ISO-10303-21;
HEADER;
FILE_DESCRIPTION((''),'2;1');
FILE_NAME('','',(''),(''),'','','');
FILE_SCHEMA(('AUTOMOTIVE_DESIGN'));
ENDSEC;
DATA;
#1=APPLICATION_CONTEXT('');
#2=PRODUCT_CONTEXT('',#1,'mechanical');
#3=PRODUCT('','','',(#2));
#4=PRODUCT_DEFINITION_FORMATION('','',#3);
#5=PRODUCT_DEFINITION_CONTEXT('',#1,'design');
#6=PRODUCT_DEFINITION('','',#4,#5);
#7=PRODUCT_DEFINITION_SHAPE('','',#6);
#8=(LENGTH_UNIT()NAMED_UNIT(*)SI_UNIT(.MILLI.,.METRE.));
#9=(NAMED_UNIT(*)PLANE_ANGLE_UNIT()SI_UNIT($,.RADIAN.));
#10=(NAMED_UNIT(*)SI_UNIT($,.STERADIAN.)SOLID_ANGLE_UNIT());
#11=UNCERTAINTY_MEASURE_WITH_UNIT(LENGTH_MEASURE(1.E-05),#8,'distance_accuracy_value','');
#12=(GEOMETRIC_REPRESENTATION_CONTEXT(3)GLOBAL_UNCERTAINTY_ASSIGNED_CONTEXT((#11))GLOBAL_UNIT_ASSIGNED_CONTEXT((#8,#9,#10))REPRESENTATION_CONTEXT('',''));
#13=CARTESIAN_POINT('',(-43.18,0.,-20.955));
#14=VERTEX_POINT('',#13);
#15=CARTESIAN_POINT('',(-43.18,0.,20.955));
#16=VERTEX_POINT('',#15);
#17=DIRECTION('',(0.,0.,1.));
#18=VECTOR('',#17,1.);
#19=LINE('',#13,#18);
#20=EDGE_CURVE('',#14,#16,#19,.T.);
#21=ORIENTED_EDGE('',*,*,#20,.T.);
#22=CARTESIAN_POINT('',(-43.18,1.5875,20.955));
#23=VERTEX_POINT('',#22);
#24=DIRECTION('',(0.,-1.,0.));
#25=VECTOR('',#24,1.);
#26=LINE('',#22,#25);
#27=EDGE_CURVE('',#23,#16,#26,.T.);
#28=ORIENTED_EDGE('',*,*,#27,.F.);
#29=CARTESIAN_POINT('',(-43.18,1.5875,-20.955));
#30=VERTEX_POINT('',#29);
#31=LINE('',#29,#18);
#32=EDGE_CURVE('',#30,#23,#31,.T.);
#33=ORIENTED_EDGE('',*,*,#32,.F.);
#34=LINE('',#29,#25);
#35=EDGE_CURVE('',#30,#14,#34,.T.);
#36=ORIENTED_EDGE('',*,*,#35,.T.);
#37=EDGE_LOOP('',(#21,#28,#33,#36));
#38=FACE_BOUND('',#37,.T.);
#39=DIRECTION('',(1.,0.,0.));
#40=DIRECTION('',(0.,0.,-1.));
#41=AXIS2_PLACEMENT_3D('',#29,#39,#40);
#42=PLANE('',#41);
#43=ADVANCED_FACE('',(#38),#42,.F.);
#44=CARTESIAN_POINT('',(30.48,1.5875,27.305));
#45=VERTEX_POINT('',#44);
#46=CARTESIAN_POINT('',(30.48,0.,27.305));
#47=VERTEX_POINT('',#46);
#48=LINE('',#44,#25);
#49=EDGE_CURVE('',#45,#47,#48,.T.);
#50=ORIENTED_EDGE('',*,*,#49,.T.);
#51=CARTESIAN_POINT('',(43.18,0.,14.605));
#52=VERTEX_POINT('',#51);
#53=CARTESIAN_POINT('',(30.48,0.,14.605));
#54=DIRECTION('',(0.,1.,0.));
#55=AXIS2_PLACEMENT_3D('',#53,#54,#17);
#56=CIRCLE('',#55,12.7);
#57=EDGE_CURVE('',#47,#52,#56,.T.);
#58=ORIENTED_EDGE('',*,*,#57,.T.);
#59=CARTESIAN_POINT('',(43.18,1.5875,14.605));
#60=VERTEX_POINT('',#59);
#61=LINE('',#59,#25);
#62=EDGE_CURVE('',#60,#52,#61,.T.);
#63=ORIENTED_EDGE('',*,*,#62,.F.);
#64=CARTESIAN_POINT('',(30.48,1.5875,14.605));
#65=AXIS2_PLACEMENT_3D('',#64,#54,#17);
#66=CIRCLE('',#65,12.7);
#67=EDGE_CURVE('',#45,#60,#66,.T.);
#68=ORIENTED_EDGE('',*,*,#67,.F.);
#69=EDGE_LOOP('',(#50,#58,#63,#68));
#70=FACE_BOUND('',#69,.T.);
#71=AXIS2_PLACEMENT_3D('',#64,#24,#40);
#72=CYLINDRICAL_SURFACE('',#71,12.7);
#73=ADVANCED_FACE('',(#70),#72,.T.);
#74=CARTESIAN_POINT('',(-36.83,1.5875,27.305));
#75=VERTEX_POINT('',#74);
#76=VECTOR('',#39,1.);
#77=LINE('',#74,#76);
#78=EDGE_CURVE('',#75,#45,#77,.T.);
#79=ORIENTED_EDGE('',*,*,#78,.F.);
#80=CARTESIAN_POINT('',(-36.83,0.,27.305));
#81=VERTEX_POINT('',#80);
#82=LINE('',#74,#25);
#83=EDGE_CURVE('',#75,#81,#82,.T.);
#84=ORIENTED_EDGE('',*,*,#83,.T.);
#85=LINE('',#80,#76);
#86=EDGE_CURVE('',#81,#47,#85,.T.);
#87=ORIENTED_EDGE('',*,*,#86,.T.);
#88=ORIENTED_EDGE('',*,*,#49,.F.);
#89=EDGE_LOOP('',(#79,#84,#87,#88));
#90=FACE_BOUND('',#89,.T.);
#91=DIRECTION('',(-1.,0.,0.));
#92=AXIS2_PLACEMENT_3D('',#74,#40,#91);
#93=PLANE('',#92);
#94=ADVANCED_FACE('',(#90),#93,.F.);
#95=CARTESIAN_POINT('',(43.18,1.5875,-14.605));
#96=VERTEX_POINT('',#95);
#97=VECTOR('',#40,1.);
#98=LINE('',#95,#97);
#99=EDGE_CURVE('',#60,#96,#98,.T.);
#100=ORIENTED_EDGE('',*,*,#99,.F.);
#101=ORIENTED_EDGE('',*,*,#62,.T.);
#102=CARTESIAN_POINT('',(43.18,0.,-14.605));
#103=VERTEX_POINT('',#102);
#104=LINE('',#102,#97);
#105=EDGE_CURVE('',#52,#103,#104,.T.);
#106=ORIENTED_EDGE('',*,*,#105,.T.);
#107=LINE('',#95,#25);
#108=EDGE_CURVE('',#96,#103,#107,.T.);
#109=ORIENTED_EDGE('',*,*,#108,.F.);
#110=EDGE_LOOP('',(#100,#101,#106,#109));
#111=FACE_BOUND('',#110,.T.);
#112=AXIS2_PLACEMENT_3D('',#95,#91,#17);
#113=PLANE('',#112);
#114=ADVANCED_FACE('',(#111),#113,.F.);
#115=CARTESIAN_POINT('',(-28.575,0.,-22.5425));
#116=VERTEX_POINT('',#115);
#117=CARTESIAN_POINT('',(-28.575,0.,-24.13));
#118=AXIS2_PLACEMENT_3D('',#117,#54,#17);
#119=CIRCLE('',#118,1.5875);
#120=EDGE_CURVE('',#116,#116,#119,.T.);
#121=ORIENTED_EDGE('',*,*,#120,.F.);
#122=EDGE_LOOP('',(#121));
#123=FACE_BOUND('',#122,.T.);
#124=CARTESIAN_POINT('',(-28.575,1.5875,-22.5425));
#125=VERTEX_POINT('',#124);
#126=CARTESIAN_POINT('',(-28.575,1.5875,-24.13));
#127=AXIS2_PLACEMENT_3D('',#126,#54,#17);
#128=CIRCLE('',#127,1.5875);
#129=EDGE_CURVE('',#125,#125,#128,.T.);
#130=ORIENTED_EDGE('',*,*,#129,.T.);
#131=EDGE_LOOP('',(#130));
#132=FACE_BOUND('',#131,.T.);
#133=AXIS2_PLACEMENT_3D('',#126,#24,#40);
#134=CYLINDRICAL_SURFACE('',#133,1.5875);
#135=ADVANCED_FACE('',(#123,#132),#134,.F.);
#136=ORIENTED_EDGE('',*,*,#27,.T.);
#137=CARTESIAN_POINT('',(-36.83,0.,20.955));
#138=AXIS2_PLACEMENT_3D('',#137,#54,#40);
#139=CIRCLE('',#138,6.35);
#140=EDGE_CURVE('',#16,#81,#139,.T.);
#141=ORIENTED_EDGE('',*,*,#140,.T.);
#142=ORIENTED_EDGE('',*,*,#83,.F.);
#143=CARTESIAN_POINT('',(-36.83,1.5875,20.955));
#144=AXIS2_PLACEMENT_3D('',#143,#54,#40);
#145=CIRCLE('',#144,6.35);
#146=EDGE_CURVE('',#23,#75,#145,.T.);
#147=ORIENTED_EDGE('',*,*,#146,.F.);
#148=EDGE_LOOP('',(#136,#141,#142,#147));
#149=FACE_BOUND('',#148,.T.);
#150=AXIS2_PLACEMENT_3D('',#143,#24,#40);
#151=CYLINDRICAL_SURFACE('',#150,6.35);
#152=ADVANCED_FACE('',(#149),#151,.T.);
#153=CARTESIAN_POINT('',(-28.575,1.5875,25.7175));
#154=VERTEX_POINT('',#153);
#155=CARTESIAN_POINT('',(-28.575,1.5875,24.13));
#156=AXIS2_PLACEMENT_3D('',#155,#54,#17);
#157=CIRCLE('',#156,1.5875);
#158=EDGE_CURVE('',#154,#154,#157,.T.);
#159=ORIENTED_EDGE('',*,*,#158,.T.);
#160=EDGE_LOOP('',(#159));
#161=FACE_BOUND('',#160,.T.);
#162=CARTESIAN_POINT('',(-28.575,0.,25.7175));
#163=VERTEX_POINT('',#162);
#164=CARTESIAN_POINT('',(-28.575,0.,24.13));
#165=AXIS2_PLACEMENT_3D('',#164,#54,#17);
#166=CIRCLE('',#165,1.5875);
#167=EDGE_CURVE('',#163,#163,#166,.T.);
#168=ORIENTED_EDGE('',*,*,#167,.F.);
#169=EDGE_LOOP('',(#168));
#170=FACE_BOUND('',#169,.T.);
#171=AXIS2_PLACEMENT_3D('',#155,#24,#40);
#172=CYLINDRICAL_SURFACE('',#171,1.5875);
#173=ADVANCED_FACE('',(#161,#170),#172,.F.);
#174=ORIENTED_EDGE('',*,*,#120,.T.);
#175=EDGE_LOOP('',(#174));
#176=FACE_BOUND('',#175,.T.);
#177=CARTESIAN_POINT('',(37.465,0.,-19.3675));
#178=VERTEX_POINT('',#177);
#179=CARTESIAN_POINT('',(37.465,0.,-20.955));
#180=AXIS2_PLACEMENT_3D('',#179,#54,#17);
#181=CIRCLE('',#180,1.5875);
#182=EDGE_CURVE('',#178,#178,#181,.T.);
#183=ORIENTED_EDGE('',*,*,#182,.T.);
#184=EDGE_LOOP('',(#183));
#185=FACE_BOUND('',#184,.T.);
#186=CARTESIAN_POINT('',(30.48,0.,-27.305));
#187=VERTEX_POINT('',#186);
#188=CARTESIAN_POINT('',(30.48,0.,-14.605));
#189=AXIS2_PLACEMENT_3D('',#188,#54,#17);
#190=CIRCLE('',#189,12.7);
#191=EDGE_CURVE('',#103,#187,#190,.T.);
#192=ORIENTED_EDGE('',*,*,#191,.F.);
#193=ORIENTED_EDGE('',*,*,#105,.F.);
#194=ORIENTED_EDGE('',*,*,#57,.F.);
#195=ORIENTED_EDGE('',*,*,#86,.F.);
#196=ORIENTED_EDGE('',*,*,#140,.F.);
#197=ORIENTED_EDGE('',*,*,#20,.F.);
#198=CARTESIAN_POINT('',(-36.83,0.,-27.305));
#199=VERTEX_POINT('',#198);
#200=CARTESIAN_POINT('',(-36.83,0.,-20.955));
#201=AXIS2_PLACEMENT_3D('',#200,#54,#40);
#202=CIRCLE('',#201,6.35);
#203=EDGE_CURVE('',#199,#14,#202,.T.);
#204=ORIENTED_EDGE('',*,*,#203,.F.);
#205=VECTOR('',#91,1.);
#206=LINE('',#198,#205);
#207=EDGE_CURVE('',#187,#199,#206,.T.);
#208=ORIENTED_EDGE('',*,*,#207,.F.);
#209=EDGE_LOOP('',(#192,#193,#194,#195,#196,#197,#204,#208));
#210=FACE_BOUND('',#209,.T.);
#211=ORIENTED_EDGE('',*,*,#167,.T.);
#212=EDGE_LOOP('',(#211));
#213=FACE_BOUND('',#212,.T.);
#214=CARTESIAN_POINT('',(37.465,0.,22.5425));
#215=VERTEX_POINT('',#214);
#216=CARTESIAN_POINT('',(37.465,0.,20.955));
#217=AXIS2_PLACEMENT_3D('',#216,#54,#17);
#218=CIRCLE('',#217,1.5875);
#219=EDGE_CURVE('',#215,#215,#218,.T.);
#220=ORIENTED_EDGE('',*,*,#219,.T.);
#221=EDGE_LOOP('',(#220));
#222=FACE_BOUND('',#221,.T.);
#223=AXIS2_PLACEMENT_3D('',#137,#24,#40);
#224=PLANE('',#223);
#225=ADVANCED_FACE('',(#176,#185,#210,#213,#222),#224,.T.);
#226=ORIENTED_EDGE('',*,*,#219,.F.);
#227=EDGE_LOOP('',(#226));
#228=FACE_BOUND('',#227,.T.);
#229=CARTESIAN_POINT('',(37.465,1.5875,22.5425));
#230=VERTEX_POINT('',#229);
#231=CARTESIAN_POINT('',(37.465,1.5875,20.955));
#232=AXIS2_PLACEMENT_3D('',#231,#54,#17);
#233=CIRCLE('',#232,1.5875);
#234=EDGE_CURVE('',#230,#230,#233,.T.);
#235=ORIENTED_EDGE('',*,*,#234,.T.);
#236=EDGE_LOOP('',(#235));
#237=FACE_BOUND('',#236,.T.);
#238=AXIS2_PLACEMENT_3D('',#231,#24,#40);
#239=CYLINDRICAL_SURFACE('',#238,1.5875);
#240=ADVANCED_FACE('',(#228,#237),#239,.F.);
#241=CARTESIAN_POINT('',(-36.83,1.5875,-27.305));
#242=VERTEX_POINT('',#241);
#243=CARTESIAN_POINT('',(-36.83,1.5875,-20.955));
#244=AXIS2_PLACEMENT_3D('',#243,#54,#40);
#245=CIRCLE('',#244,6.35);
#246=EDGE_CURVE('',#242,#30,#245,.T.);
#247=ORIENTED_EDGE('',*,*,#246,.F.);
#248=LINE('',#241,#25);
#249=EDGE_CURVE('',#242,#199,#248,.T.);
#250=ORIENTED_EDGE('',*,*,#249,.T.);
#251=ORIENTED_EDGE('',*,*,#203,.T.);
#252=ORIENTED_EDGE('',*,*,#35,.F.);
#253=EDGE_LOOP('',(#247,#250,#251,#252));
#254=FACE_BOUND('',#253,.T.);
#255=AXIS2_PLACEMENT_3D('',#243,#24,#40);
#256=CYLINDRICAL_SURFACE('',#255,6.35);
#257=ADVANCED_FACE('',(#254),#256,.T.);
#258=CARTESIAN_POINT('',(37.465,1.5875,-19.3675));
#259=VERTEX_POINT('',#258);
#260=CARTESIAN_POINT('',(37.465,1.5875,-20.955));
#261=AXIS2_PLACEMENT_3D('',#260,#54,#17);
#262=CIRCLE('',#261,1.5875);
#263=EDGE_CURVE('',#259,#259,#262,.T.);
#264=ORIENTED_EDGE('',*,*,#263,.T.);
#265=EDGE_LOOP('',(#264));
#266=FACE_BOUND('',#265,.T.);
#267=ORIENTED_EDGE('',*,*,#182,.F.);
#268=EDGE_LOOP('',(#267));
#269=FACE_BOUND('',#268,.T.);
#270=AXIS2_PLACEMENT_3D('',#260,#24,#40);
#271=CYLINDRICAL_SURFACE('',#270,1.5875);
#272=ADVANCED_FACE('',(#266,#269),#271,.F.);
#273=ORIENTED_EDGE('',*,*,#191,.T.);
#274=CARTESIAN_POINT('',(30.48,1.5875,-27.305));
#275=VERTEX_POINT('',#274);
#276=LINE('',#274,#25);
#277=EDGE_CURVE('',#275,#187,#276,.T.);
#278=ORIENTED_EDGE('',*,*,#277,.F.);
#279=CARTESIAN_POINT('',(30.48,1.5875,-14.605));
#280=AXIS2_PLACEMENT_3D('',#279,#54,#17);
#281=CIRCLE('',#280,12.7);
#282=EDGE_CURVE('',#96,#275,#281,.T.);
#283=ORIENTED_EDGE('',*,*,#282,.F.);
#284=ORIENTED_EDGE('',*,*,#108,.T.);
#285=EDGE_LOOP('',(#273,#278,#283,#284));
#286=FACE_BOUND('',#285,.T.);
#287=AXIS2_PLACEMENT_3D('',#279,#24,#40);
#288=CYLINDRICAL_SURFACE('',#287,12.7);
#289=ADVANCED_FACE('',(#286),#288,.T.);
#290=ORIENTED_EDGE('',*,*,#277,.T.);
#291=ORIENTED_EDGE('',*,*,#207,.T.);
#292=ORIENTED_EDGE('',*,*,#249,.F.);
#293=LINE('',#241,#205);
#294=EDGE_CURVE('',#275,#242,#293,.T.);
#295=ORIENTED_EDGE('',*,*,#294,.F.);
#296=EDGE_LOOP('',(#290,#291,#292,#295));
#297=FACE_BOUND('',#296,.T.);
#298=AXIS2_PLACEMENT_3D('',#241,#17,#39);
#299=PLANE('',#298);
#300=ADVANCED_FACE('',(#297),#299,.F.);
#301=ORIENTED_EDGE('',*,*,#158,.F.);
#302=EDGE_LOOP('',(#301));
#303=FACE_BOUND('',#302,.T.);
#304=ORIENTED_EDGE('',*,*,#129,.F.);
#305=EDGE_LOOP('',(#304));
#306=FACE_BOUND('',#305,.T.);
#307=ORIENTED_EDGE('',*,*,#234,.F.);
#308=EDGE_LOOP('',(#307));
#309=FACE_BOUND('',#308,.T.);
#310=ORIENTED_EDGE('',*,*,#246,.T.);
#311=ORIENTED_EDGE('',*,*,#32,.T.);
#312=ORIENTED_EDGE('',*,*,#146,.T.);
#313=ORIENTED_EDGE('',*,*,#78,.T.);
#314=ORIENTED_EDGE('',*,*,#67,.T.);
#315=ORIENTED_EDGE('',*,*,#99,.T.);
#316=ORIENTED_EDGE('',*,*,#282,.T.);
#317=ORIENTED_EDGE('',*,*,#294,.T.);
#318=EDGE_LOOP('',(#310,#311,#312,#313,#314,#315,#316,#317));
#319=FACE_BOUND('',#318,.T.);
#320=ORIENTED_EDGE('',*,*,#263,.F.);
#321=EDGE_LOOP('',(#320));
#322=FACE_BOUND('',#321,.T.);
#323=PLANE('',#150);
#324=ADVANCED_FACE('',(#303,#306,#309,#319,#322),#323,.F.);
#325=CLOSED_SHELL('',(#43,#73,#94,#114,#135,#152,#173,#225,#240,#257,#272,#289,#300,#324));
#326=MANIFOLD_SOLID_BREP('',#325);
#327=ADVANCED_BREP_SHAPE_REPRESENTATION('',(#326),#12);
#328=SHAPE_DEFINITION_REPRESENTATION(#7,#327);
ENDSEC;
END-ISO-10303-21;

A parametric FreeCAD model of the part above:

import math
import FreeCAD as App
import Part
import Sketcher
from FreeCAD import Vector
Q = App.Units.Quantity

doc = App.newDocument("Part")
body = doc.addObject("PartDesign::Body", "Body")

sketch1 = body.newObject("Sketcher::SketchObject", "Sketch")
sketch1.AttachmentSupport = (doc.getObject("XZ_Plane"), [""])
sketch1.MapMode = "FlatFace"
sketch1.addGeometry(Part.LineSegment(Vector(30.5, -27.3, 0), Vector(-36.8, -27.3, 0)), False)
sketch1.addGeometry(Part.ArcOfCircle(Part.Circle(Vector(-36.8, -21, 0), Vector(0, 0, 1), 6.3), math.radians(180), math.radians(270)), False)
sketch1.addGeometry(Part.LineSegment(Vector(-43.2, -21, 0), Vector(-43.2, 21, 0)), False)
sketch1.addGeometry(Part.ArcOfCircle(Part.Circle(Vector(-36.8, 21, 0), Vector(0, 0, 1), 6.3), math.radians(90), math.radians(180)), False)
sketch1.addGeometry(Part.LineSegment(Vector(-36.8, 27.3, 0), Vector(30.5, 27.3, 0)), False)
sketch1.addGeometry(Part.ArcOfCircle(Part.Circle(Vector(30.5, 14.6, 0), Vector(0, 0, 1), 12.7), math.radians(0), math.radians(90)), False)
sketch1.addGeometry(Part.LineSegment(Vector(43.2, 14.6, 0), Vector(43.2, -14.6, 0)), False)
sketch1.addGeometry(Part.ArcOfCircle(Part.Circle(Vector(30.5, -14.6, 0), Vector(0, 0, 1), 12.7), math.radians(-90), math.radians(0)), False)
sketch1.addGeometry(Part.Circle(Vector(37.5, 21, 0), Vector(0, 0, 1), 1.6), False)
sketch1.addGeometry(Part.Circle(Vector(-28.6, 24.1, 0), Vector(0, 0, 1), 1.6), False)
sketch1.addGeometry(Part.Circle(Vector(37.5, -21, 0), Vector(0, 0, 1), 1.6), False)
sketch1.addGeometry(Part.Circle(Vector(-28.6, -24.1, 0), Vector(0, 0, 1), 1.6), False)
sketch1.addConstraint(Sketcher.Constraint("Tangent", 0, 2, 1, 2))
sketch1.addConstraint(Sketcher.Constraint("Tangent", 1, 1, 2, 1))
sketch1.addConstraint(Sketcher.Constraint("Tangent", 2, 2, 3, 2))
sketch1.addConstraint(Sketcher.Constraint("Tangent", 3, 1, 4, 1))
sketch1.addConstraint(Sketcher.Constraint("Tangent", 4, 2, 5, 2))
sketch1.addConstraint(Sketcher.Constraint("Tangent", 5, 1, 6, 1))
sketch1.addConstraint(Sketcher.Constraint("Tangent", 6, 2, 7, 2))
sketch1.addConstraint(Sketcher.Constraint("Tangent", 7, 1, 0, 1))
sketch1.addConstraint(Sketcher.Constraint("Horizontal", 0))
sketch1.addConstraint(Sketcher.Constraint("Vertical", 2))
sketch1.addConstraint(Sketcher.Constraint("Horizontal", 4))
sketch1.addConstraint(Sketcher.Constraint("Vertical", 6))
sketch1.addConstraint(Sketcher.Constraint("Equal", 1, 3))
sketch1.addConstraint(Sketcher.Constraint("Equal", 5, 7))
sketch1.addConstraint(Sketcher.Constraint("Equal", 8, 9))
sketch1.addConstraint(Sketcher.Constraint("Equal", 9, 10))
sketch1.addConstraint(Sketcher.Constraint("Equal", 10, 11))
sketch1.addConstraint(Sketcher.Constraint("Symmetric", 8, 3, 10, 3, -1))
sketch1.addConstraint(Sketcher.Constraint("Symmetric", 9, 3, 11, 3, -1))
sketch1.addConstraint(Sketcher.Constraint("Horizontal", 3, 3, 8, 3))
sketch1.addConstraint(Sketcher.Constraint("Horizontal", 1, 3, 10, 3))
sketch1.addConstraint(Sketcher.Constraint("Radius", 5, Q("0.5 in")))
sketch1.addConstraint(Sketcher.Constraint("Radius", 1, Q("0.25 in")))
sketch1.addConstraint(Sketcher.Constraint("Diameter", 8, Q("0.125 in")))
sketch1.addConstraint(Sketcher.Constraint("DistanceX", 0, 2, 0, 1, Q("2.65 in")))
sketch1.addConstraint(Sketcher.Constraint("DistanceY", 2, 1, 2, 2, Q("1.65 in")))
sketch1.addConstraint(Sketcher.Constraint("DistanceX", -1, 1, 5, 3, Q("1.2 in")))
sketch1.addConstraint(Sketcher.Constraint("DistanceX", 9, 3, 8, 3, Q("2.6 in")))
sketch1.addConstraint(Sketcher.Constraint("DistanceY", 11, 3, 9, 3, Q("1.9 in")))
sketch1.addConstraint(Sketcher.Constraint("DistanceX", -1, 1, 8, 3, Q("1.475 in")))
pad1 = body.newObject("PartDesign::Pad", "Pad")
pad1.Profile = sketch1
pad1.Length = Q("0.0625 in")
pad1.Reversed = True

doc.recompute()
